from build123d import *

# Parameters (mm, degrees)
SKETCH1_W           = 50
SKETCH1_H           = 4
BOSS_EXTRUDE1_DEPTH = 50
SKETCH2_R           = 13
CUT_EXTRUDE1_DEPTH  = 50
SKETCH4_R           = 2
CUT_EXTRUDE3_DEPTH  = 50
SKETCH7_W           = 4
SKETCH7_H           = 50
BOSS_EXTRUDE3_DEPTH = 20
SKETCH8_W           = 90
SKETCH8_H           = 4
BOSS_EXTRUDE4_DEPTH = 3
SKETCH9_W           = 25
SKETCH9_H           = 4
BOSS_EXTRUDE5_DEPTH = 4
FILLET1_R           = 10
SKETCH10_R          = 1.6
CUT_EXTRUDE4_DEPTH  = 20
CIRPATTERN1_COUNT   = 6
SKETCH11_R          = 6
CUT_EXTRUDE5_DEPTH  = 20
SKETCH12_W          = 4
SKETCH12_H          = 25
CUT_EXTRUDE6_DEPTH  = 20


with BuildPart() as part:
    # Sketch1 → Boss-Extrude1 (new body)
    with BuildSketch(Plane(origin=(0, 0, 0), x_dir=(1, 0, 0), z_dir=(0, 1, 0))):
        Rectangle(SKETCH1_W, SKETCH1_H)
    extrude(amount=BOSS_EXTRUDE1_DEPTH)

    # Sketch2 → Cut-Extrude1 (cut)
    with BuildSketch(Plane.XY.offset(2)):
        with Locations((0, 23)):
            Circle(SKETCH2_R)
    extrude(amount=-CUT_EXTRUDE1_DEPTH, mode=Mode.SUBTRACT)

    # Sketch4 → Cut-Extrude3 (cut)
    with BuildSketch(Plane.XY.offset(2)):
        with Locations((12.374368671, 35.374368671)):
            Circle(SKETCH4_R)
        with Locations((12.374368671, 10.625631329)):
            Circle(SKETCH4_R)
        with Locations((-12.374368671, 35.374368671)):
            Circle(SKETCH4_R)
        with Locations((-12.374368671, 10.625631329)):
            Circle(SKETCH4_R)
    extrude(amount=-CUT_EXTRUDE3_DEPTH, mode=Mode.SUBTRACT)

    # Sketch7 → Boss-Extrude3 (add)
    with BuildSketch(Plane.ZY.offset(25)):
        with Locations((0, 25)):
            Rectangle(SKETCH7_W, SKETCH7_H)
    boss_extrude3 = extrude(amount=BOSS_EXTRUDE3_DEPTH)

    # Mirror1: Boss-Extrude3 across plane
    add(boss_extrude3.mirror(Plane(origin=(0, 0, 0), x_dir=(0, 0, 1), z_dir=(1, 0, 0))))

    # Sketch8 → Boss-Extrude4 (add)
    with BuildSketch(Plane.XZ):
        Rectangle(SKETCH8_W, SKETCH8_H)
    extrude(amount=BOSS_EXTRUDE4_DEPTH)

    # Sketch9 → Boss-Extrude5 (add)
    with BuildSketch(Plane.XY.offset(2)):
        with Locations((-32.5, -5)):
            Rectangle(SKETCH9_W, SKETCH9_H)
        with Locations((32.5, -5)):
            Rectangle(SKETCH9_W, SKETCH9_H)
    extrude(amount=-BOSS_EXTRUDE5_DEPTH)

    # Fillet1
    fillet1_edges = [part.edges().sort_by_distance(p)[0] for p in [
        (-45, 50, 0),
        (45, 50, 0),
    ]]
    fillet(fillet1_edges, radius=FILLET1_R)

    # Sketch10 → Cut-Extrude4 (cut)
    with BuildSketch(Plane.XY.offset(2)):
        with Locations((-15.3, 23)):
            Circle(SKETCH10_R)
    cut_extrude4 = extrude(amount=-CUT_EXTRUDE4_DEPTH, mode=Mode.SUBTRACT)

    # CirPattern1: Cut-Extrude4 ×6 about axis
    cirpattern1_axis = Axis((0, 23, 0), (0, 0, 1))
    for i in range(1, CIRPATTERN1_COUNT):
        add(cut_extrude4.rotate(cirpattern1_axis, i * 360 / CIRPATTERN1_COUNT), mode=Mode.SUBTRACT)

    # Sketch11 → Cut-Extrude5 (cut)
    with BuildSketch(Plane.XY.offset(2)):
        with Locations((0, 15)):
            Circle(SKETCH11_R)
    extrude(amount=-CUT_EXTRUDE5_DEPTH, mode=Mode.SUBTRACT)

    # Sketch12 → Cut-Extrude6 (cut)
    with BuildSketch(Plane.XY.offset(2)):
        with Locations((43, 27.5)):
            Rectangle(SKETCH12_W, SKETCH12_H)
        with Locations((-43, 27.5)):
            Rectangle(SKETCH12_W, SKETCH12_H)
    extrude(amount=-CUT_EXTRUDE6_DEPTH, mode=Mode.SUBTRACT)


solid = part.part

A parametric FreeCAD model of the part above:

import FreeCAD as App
import Part
import Sketcher
from FreeCAD import Vector


def edges_at(feature, points):
    """Names of the edges that pass closest to the given points."""
    edges = feature.Shape.Edges
    near = lambda p: min(range(len(edges)), key=lambda i: edges[i].distToShape(Part.Vertex(*p))[0])
    return sorted({f"Edge{near(p) + 1}" for p in points})


def add_polygon(sketch, points):
    """Adds a closed chain of lines whose ends are joined by coincident constraints."""
    first, n = sketch.GeometryCount, len(points)
    for a, b in zip(points, points[1:] + points[:1]):
        sketch.addGeometry(Part.LineSegment(App.Vector(*a, 0), App.Vector(*b, 0)), False)
    for i in range(n):
        sketch.addConstraint(Sketcher.Constraint("Coincident", first + i, 2, first + (i + 1) % n, 1))

doc = App.newDocument("Part")
body = doc.addObject("PartDesign::Body", "Body")

# Sketch on XZ plane
sketch1 = body.newObject("Sketcher::SketchObject", "Sketch")
sketch1.AttachmentSupport = (doc.getObject("XZ_Plane"), [""])
sketch1.MapMode = "FlatFace"
add_polygon(sketch1, [(-25, -2), (-25, 2), (25, 2), (25, -2)])  # lines 0-3
sketch1.addConstraint(Sketcher.Constraint("Vertical", 0))
sketch1.addConstraint(Sketcher.Constraint("Horizontal", 1))
sketch1.addConstraint(Sketcher.Constraint("Vertical", 2))
sketch1.addConstraint(Sketcher.Constraint("Horizontal", 3))
sketch1.addConstraint(Sketcher.Constraint("Symmetric", 0, 2, 2, 2, -1, 1))
sketch1.addConstraint(Sketcher.Constraint("DistanceX", 1, 1, 1, 2, 50.0))
sketch1.addConstraint(Sketcher.Constraint("DistanceY", 0, 1, 0, 2, 4.0))
pad1 = body.newObject("PartDesign::Pad", "Pad")
pad1.Profile = sketch1
pad1.Length = 50
pad1.Reversed = True

# Sketch on XY plane
sketch2 = body.newObject("Sketcher::SketchObject", "Sketch001")
sketch2.AttachmentSupport = (doc.getObject("XY_Plane"), [""])
sketch2.MapMode = "FlatFace"
sketch2.AttachmentOffset = App.Placement(Vector(0, 0, 2), App.Rotation())
sketch2.addGeometry(Part.Circle(Vector(0, 23, 0), Vector(0, 0, 1), 13), False)
sketch2.addConstraint(Sketcher.Constraint("PointOnObject", 0, 3, -2))
sketch2.addConstraint(Sketcher.Constraint("Diameter", 0, 26.0))
sketch2.addConstraint(Sketcher.Constraint("DistanceY", -1, 1, 0, 3, 23.0))
pocket1 = body.newObject("PartDesign::Pocket", "Pocket")
pocket1.Profile = sketch2
pocket1.Length = 50

# Sketch on XY plane
sketch3 = body.newObject("Sketcher::SketchObject", "Sketch002")
sketch3.AttachmentSupport = (doc.getObject("XY_Plane"), [""])
sketch3.MapMode = "FlatFace"
sketch3.AttachmentOffset = App.Placement(Vector(0, 0, 2), App.Rotation())
sketch3.addGeometry(Part.Circle(Vector(12.374369, 35.374369, 0), Vector(0, 0, 1), 2), False)
sketch3.addGeometry(Part.Circle(Vector(12.374369, 10.625631, 0), Vector(0, 0, 1), 2), False)
sketch3.addGeometry(Part.Circle(Vector(-12.374369, 35.374369, 0), Vector(0, 0, 1), 2), False)
sketch3.addGeometry(Part.Circle(Vector(-12.374369, 10.625631, 0), Vector(0, 0, 1), 2), False)
sketch3.addConstraint(Sketcher.Constraint("Equal", 0, 1))
sketch3.addConstraint(Sketcher.Constraint("Equal", 1, 2))
sketch3.addConstraint(Sketcher.Constraint("Equal", 2, 3))
sketch3.addConstraint(Sketcher.Constraint("Symmetric", 0, 3, 2, 3, -2))
sketch3.addConstraint(Sketcher.Constraint("Symmetric", 1, 3, 3, 3, -2))
sketch3.addConstraint(Sketcher.Constraint("Vertical", 0, 3, 1, 3))
sketch3.addConstraint(Sketcher.Constraint("Diameter", 0, 4.0))
sketch3.addConstraint(Sketcher.Constraint("DistanceX", -1, 1, 0, 3, 12.374369))
sketch3.addConstraint(Sketcher.Constraint("DistanceY", -1, 1, 0, 3, 35.374369))
sketch3.addConstraint(Sketcher.Constraint("DistanceY", -1, 1, 1, 3, 10.625631))
pocket2 = body.newObject("PartDesign::Pocket", "Pocket001")
pocket2.Profile = sketch3
pocket2.Length = 50

# Sketch on YZ plane
sketch4 = body.newObject("Sketcher::SketchObject", "Sketch003")
sketch4.AttachmentSupport = (doc.getObject("YZ_Plane"), [""])
sketch4.MapMode = "FlatFace"
sketch4.AttachmentOffset = App.Placement(Vector(0, 0, -25), App.Rotation())
add_polygon(sketch4, [(50, -2), (0, -2), (0, 2), (50, 2)])  # lines 0-3
sketch4.addConstraint(Sketcher.Constraint("Horizontal", 0))
sketch4.addConstraint(Sketcher.Constraint("Vertical", 1))
sketch4.addConstraint(Sketcher.Constraint("Horizontal", 2))
sketch4.addConstraint(Sketcher.Constraint("Vertical", 3))
sketch4.addConstraint(Sketcher.Constraint("Symmetric", 0, 2, 1, 2, -1, 1))
sketch4.addConstraint(Sketcher.Constraint("DistanceX", 0, 2, 0, 1, 50.0))
sketch4.addConstraint(Sketcher.Constraint("DistanceY", 1, 1, 1, 2, 4.0))
pad2 = body.newObject("PartDesign::Pad", "Pad001")
pad2.Profile = sketch4
pad2.Length = 20
pad2.Reversed = True
doc.recompute()

mirrored = body.newObject("PartDesign::Mirrored", "Mirrored")
mirrored.Originals = [pad2]
mirrored.MirrorPlane = (doc.getObject("YZ_Plane"), [""])
body.Tip = mirrored

# Sketch on XZ plane
sketch5 = body.newObject("Sketcher::SketchObject", "Sketch004")
sketch5.AttachmentSupport = (doc.getObject("XZ_Plane"), [""])
sketch5.MapMode = "FlatFace"
add_polygon(sketch5, [(-45, 2), (-45, -2), (45, -2), (45, 2)])  # lines 0-3
sketch5.addConstraint(Sketcher.Constraint("Vertical", 0))
sketch5.addConstraint(Sketcher.Constraint("Horizontal", 1))
sketch5.addConstraint(Sketcher.Constraint("Vertical", 2))
sketch5.addConstraint(Sketcher.Constraint("Horizontal", 3))
sketch5.addConstraint(Sketcher.Constraint("Symmetric", 0, 2, 2, 2, -1, 1))
sketch5.addConstraint(Sketcher.Constraint("DistanceX", 1, 1, 1, 2, 90.0))
sketch5.addConstraint(Sketcher.Constraint("DistanceY", 0, 2, 0, 1, 4.0))
pad3 = body.newObject("PartDesign::Pad", "Pad002")
pad3.Profile = sketch5
pad3.Length = 3

# Sketch on XY plane
sketch6 = body.newObject("Sketcher::SketchObject", "Sketch005")
sketch6.AttachmentSupport = (doc.getObject("XY_Plane"), [""])
sketch6.MapMode = "FlatFace"
sketch6.AttachmentOffset = App.Placement(Vector(0, 0, 2), App.Rotation())
add_polygon(sketch6, [(-45, -3), (-45, -7), (-20, -7), (-20, -3)])  # lines 0-3
add_polygon(sketch6, [(20, -3), (20, -7), (45, -7), (45, -3)])  # lines 4-7
sketch6.addConstraint(Sketcher.Constraint("Vertical", 0))
sketch6.addConstraint(Sketcher.Constraint("Horizontal", 1))
sketch6.addConstraint(Sketcher.Constraint("Vertical", 2))
sketch6.addConstraint(Sketcher.Constraint("Horizontal", 3))
sketch6.addConstraint(Sketcher.Constraint("Vertical", 4))
sketch6.addConstraint(Sketcher.Constraint("Horizontal", 5))
sketch6.addConstraint(Sketcher.Constraint("Vertical", 6))
sketch6.addConstraint(Sketcher.Constraint("Horizontal", 7))
sketch6.addConstraint(Sketcher.Constraint("Symmetric", 1, 2, 4, 2, -2))
sketch6.addConstraint(Sketcher.Constraint("Symmetric", 3, 2, 6, 2, -2))
sketch6.addConstraint(Sketcher.Constraint("DistanceX", 1, 1, 1, 2, 25.0))
sketch6.addConstraint(Sketcher.Constraint("DistanceY", 0, 2, 0, 1, 4.0))
sketch6.addConstraint(Sketcher.Constraint("DistanceX", 0, 2, -1, 1, 45.0))
sketch6.addConstraint(Sketcher.Constraint("DistanceY", 0, 2, -1, 1, 7.0))
pad4 = body.newObject("PartDesign::Pad", "Pad003")
pad4.Profile = sketch6
pad4.Length = 4
pad4.Reversed = True
doc.recompute()

fillet = body.newObject("PartDesign::Fillet", "Fillet")
fillet.Base = (pad4, edges_at(pad4, [(-45, 50, 0), (45, 50, 0)]))
fillet.Radius = 10

# Sketch on XY plane
sketch7 = body.newObject("Sketcher::SketchObject", "Sketch006")
sketch7.AttachmentSupport = (doc.getObject("XY_Plane"), [""])
sketch7.MapMode = "FlatFace"
sketch7.AttachmentOffset = App.Placement(Vector(0, 0, 2), App.Rotation())
sketch7.addGeometry(Part.Circle(Vector(-15.3, 23, 0), Vector(0, 0, 1), 1.6), False)
sketch7.addConstraint(Sketcher.Constraint("Diameter", 0, 3.2))
sketch7.addConstraint(Sketcher.Constraint("DistanceY", -1, 1, 0, 3, 23.0))
sketch7.addConstraint(Sketcher.Constraint("DistanceX", 0, 3, -1, 1, 15.3))
pocket3 = body.newObject("PartDesign::Pocket", "Pocket002")
pocket3.Profile = sketch7
pocket3.Length = 20
doc.recompute()

datumline = body.newObject("PartDesign::Line", "DatumLine")
datumline.Placement = App.Placement(Vector(0, 23, 0), App.Rotation(Vector(0, 0, 1), Vector(0, 0, 1)))
polarpattern = body.newObject("PartDesign::PolarPattern", "PolarPattern")
polarpattern.Originals = [pocket3]
polarpattern.Axis = (datumline, [""])
polarpattern.Angle = 360
polarpattern.Occurrences = 6
body.Tip = polarpattern

# Sketch on XY plane
sketch8 = body.newObject("Sketcher::SketchObject", "Sketch007")
sketch8.AttachmentSupport = (doc.getObject("XY_Plane"), [""])
sketch8.MapMode = "FlatFace"
sketch8.AttachmentOffset = App.Placement(Vector(0, 0, 2), App.Rotation())
sketch8.addGeometry(Part.Circle(Vector(0, 15, 0), Vector(0, 0, 1), 6), False)
sketch8.addConstraint(Sketcher.Constraint("PointOnObject", 0, 3, -2))
sketch8.addConstraint(Sketcher.Constraint("Diameter", 0, 12.0))
sketch8.addConstraint(Sketcher.Constraint("DistanceY", -1, 1, 0, 3, 15.0))
pocket4 = body.newObject("PartDesign::Pocket", "Pocket003")
pocket4.Profile = sketch8
pocket4.Length = 20

# Sketch on XY plane
sketch9 = body.newObject("Sketcher::SketchObject", "Sketch008")
sketch9.AttachmentSupport = (doc.getObject("XY_Plane"), [""])
sketch9.MapMode = "FlatFace"
sketch9.AttachmentOffset = App.Placement(Vector(0, 0, 2), App.Rotation())
add_polygon(sketch9, [(41, 40), (41, 15), (45, 15), (45, 40)])  # lines 0-3
add_polygon(sketch9, [(-45, 40), (-45, 15), (-41, 15), (-41, 40)])  # lines 4-7
sketch9.addConstraint(Sketcher.Constraint("Vertical", 0))
sketch9.addConstraint(Sketcher.Constraint("Horizontal", 1))
sketch9.addConstraint(Sketcher.Constraint("Vertical", 2))
sketch9.addConstraint(Sketcher.Constraint("Horizontal", 3))
sketch9.addConstraint(Sketcher.Constraint("Vertical", 4))
sketch9.addConstraint(Sketcher.Constraint("Horizontal", 5))
sketch9.addConstraint(Sketcher.Constraint("Vertical", 6))
sketch9.addConstraint(Sketcher.Constraint("Horizontal", 7))
sketch9.addConstraint(Sketcher.Constraint("Symmetric", 1, 2, 4, 2, -2))
sketch9.addConstraint(Sketcher.Constraint("Symmetric", 3, 2, 6, 2, -2))
sketch9.addConstraint(Sketcher.Constraint("DistanceX", 1, 1, 1, 2, 4.0))
sketch9.addConstraint(Sketcher.Constraint("DistanceY", 0, 2, 0, 1, 25.0))
sketch9.addConstraint(Sketcher.Constraint("DistanceX", -1, 1, 0, 2, 41.0))
sketch9.addConstraint(Sketcher.Constraint("DistanceY", -1, 1, 0, 2, 15.0))
pocket5 = body.newObject("PartDesign::Pocket", "Pocket004")
pocket5.Profile = sketch9
pocket5.Length = 20

doc.recompute()
